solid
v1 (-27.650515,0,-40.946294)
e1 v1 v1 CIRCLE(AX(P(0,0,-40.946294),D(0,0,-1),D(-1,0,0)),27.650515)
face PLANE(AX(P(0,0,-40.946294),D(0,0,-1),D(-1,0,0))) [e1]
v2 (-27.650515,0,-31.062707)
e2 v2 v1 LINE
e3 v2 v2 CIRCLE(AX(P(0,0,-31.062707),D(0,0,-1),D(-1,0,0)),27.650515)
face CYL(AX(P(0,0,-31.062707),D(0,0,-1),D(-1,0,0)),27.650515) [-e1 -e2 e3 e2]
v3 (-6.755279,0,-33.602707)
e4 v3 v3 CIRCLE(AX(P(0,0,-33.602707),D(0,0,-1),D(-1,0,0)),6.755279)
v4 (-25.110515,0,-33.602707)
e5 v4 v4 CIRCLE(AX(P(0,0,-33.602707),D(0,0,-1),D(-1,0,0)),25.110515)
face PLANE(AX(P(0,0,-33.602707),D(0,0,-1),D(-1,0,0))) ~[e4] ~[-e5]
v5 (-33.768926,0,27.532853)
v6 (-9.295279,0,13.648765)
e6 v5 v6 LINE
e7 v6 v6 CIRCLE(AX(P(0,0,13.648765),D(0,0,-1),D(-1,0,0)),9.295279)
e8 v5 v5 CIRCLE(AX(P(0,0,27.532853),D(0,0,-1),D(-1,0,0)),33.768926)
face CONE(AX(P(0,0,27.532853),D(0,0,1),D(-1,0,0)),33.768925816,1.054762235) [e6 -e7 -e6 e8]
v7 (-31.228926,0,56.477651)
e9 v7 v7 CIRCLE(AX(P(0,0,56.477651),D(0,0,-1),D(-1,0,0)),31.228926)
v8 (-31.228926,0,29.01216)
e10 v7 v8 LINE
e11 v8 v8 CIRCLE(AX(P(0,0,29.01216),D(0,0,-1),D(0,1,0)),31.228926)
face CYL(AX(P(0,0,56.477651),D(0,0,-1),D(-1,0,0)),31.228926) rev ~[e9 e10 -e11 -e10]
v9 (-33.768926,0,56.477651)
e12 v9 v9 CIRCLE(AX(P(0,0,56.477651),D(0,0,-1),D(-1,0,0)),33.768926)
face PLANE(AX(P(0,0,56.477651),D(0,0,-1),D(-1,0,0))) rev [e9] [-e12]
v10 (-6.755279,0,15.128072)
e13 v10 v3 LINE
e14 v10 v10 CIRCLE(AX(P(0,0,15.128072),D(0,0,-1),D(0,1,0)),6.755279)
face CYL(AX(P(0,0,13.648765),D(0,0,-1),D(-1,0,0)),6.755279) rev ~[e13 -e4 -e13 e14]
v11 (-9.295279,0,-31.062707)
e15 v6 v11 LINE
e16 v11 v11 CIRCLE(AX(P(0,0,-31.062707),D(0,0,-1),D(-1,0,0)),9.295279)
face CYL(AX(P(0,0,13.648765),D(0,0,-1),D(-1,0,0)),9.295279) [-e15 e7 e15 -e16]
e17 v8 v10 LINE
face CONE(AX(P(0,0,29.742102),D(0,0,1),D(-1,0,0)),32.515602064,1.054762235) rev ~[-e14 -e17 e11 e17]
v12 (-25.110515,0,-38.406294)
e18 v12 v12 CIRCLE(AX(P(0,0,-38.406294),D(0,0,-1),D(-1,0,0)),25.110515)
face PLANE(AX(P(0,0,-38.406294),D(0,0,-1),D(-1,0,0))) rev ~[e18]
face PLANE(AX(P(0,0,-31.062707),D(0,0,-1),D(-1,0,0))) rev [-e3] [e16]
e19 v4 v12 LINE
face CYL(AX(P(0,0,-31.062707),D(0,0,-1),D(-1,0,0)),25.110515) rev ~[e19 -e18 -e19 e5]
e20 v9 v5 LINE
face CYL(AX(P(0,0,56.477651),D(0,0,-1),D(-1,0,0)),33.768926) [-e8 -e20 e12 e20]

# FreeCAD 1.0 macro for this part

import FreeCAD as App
import Part
import Sketcher
from FreeCAD import Vector
Q = App.Units.Quantity


def faces_at(feature, points):
    """Names of the faces that lie closest to the given points."""
    faces = feature.Shape.Faces
    near = lambda p: min(range(len(faces)), key=lambda i: faces[i].distToShape(Part.Vertex(*p))[0])
    return sorted({f"Face{near(p) + 1}" for p in points})


def add_polygon(sketch, points):
    """Adds a closed chain of lines whose ends are joined by coincident constraints."""
    first, n = sketch.GeometryCount, len(points)
    for a, b in zip(points, points[1:] + points[:1]):
        sketch.addGeometry(Part.LineSegment(App.Vector(*a, 0), App.Vector(*b, 0)), False)
    for i in range(n):
        sketch.addConstraint(Sketcher.Constraint("Coincident", first + i, 2, first + (i + 1) % n, 1))

doc = App.newDocument("Part")
body = doc.addObject("PartDesign::Body", "Body")

# Sketch on XZ plane
sketch1 = body.newObject("Sketcher::SketchObject", "Sketch")
sketch1.AttachmentSupport = (doc.getObject("XZ_Plane"), [""])
sketch1.MapMode = "FlatFace"
add_polygon(sketch1, [(0, -41), (0, 56), (-34, 56), (-34, 28), (-9, 14), (-9, -31), (-28, -31), (-28, -41)])  # lines 0-7
sketch1.addConstraint([
    Sketcher.Constraint("Vertical", 0),
    Sketcher.Constraint("Horizontal", 1),
    Sketcher.Constraint("Vertical", 2),
    Sketcher.Constraint("Vertical", 4),
    Sketcher.Constraint("Horizontal", 5),
    Sketcher.Constraint("Vertical", 6),
    Sketcher.Constraint("Horizontal", 7),
    Sketcher.Constraint("PointOnObject", 0, 2, -2),
    Sketcher.Constraint("Distance", 3, 28.137649),
    Sketcher.Constraint("DistanceX", 1, 2, 1, 1, 33.768926),
    Sketcher.Constraint("DistanceX", 5, 2, 5, 1, 18.355235),
    Sketcher.Constraint("DistanceX", 7, 1, 7, 2, 27.650515),
    Sketcher.Constraint("DistanceY", 0, 1, 0, 2, 97.423945),
    Sketcher.Constraint("DistanceY", 2, 2, 2, 1, 28.944798),
    Sketcher.Constraint("DistanceY", 4, 2, 4, 1, 44.711472),
    Sketcher.Constraint("DistanceY", -1, 1, 0, 2, 56.477651),
])
revolution = body.newObject("PartDesign::Revolution", "Revolution")
revolution.Profile = sketch1
revolution.ReferenceAxis = (sketch1, ["V_Axis"])
revolution.Angle = 360
doc.recompute()

thickness = body.newObject("PartDesign::Thickness", "Thickness")
thickness.Base = (revolution, faces_at(revolution, [(0, 0, 56.478)]))
thickness.Value = Q("0.1 in")
thickness.Reversed = True
thickness.Join = "Intersection"

doc.recompute()
